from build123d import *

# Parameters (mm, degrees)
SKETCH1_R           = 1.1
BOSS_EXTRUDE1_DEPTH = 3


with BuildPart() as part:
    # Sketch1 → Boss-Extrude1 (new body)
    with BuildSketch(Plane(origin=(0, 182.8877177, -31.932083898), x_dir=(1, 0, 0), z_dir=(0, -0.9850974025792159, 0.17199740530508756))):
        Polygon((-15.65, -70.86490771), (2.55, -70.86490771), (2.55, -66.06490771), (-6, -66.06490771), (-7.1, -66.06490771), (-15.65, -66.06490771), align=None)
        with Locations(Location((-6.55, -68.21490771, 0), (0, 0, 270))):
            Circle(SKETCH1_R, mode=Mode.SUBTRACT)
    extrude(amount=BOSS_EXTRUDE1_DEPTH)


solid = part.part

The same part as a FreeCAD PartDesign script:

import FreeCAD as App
import Part
import Sketcher

V = App.Vector

doc = App.newDocument("Part")
params = doc.addObject("Spreadsheet::Sheet", "Params")
for row, (alias, value) in enumerate([
    ("sketch1_diameter", "2.2 mm"),
    ("sketch1_width", "18.2 mm"),
    ("sketch1_height", "4.8 mm"),
    ("pad1_length", "3 mm"),
], start=1):
    params.set(f"A{row}", alias)
    params.set(f"B{row}", "=" + value)
    params.setAlias(f"B{row}", alias)

body = doc.addObject("PartDesign::Body", "Body")

# Sketch on an angled plane
sketch1 = body.newObject("Sketcher::SketchObject", "Sketch")
sketch1.Placement = App.Placement(V(0, 182.887718, -31.932084), App.Rotation(V(1, 0, 0), V(0, 0.171997405, 0.985097403), V(0, -0.985097403, 0.171997405), "ZXY"))
sketch1.addGeometry([
    Part.LineSegment(V(-15.65, -70.864908, 0), V(2.55, -70.864908, 0)),  # 0
    Part.LineSegment(V(2.55, -70.864908, 0), V(2.55, -66.064908, 0)),  # 1
    Part.LineSegment(V(2.55, -66.064908, 0), V(-15.65, -66.064908, 0)),  # 2
    Part.LineSegment(V(-15.65, -66.064908, 0), V(-15.65, -70.864908, 0)),  # 3
    Part.Circle(V(-6.55, -68.214908, 0), V(0, 0, 1), 1.1),  # 4
], False)
sketch1.addConstraint([
    Sketcher.Constraint("Coincident", 0, 2, 1, 1),
    Sketcher.Constraint("Coincident", 1, 2, 2, 1),
    Sketcher.Constraint("Coincident", 2, 2, 3, 1),
    Sketcher.Constraint("Coincident", 3, 2, 0, 1),
    Sketcher.Constraint("Horizontal", 0),
    Sketcher.Constraint("Vertical", 1),
    Sketcher.Constraint("Horizontal", 2),
    Sketcher.Constraint("Vertical", 3),
    Sketcher.Constraint("Diameter", 4, 2.2),
    Sketcher.Constraint("DistanceX", 0, 1, 0, 2, 18.2),
    Sketcher.Constraint("DistanceY", 1, 1, 1, 2, 4.8),
    Sketcher.Constraint("DistanceX", 4, 3, 0, 2, 9.1),
    Sketcher.Constraint("DistanceX", 4, 3, -1, 1, 6.55),
    Sketcher.Constraint("DistanceY", 0, 2, 4, 3, 2.65),
    Sketcher.Constraint("DistanceY", 4, 3, -1, 1, 68.214908),
])
sketch1.setExpression("Constraints[8]", "Params.sketch1_diameter")
sketch1.setExpression("Constraints[9]", "Params.sketch1_width")
sketch1.setExpression("Constraints[10]", "Params.sketch1_height")
pad1 = body.newObject("PartDesign::Pad", "Pad")
pad1.Profile = sketch1
pad1.setExpression("Length", "Params.pad1_length")

doc.recompute()
